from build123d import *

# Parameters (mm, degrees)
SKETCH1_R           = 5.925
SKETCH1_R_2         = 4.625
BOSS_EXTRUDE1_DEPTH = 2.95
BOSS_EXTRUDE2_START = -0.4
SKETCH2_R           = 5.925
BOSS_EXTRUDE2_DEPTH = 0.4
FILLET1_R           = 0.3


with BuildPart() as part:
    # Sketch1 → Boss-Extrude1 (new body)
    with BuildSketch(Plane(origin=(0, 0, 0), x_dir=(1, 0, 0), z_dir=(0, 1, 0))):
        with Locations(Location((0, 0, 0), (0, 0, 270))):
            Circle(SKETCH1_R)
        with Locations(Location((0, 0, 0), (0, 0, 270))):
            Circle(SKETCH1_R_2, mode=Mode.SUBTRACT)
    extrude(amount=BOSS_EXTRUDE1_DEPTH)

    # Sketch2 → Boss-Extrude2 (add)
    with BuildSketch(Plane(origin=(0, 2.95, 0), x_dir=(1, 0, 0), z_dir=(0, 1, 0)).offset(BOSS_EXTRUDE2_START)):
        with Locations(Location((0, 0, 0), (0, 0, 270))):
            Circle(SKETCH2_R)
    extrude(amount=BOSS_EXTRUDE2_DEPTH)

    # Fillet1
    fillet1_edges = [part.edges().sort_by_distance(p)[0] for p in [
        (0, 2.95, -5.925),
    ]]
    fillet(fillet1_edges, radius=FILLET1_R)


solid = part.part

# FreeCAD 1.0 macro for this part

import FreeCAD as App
import Part
import Sketcher

V = App.Vector
Q = App.Units.Quantity


def edges_at(feature, points):
    """Names of the edges that pass closest to the given points."""
    edges = feature.Shape.Edges
    near = lambda p: min(range(len(edges)), key=lambda i: edges[i].distToShape(Part.Vertex(*p))[0])
    return sorted({f"Edge{near(p) + 1}" for p in points})

doc = App.newDocument("Part")
body = doc.addObject("PartDesign::Body", "Body")

sketch1 = body.newObject("Sketcher::SketchObject", "Sketch")
sketch1.AttachmentSupport = (doc.getObject("XZ_Plane"), [""])
sketch1.MapMode = "FlatFace"
sketch1.addGeometry([
    Part.Circle(V(0, 0, 0), V(0, 0, 1), 5.9),
    Part.Circle(V(0, 0, 0), V(0, 0, 1), 4.6),
], False)
sketch1.addConstraint([
    Sketcher.Constraint("Coincident", 0, 3, -1, 1),
    Sketcher.Constraint("Coincident", 1, 3, -1, 1),
    Sketcher.Constraint("Diameter", 0, Q("11.85 mm")),
    Sketcher.Constraint("Diameter", 1, Q("9.25 mm")),
])
pad1 = body.newObject("PartDesign::Pad", "Pad")
pad1.Profile = sketch1
pad1.Length = 2.95
pad1.Reversed = True

sketch2 = body.newObject("Sketcher::SketchObject", "Sketch001")
sketch2.AttachmentSupport = (doc.getObject("XZ_Plane"), [""])
sketch2.MapMode = "FlatFace"
sketch2.AttachmentOffset = App.Placement(V(0, 0, -2.55), App.Rotation())
sketch2.addGeometry(Part.Circle(V(0, 0, 0), V(0, 0, 1), 6), False)
sketch2.addConstraint([
    Sketcher.Constraint("Coincident", 0, 3, -1, 1),
    Sketcher.Constraint("Diameter", 0, Q("11.85 mm")),
])
pad2 = body.newObject("PartDesign::Pad", "Pad001")
pad2.Profile = sketch2
pad2.Length = 0.4
pad2.Reversed = True
doc.recompute()

fillet = body.newObject("PartDesign::Fillet", "Fillet")
fillet.Base = (pad2, edges_at(pad2, [(0, 2.95, -5.925)]))
fillet.Radius = 0.3

doc.recompute()
